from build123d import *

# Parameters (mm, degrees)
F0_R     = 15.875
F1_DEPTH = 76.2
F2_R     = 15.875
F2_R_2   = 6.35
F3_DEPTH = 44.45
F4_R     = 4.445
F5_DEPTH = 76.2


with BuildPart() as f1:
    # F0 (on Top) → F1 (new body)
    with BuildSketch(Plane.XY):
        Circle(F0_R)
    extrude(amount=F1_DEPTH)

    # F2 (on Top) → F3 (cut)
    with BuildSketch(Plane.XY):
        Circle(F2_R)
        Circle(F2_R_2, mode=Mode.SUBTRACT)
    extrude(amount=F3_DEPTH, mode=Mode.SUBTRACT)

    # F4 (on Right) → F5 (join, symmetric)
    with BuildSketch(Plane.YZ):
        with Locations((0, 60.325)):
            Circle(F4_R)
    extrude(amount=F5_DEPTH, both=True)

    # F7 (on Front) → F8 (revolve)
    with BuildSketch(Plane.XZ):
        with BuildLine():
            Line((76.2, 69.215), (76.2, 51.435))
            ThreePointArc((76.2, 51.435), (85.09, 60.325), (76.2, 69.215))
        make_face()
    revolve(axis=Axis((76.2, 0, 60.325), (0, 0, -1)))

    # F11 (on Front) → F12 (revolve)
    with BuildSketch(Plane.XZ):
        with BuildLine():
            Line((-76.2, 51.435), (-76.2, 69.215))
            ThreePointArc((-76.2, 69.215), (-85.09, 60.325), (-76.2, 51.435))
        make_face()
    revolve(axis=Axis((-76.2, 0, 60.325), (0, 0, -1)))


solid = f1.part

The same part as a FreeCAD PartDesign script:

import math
import FreeCAD as App
import Part
import Sketcher
Q = App.Units.Quantity

doc = App.newDocument("Part")
body = doc.addObject("PartDesign::Body", "Body")

# Sketch on XY plane
sketch1 = body.newObject("Sketcher::SketchObject", "Sketch")
sketch1.AttachmentSupport = (doc.getObject("XY_Plane"), [""])
sketch1.MapMode = "FlatFace"
sketch1.addGeometry(Part.Circle(App.Vector(0, 0, 0), App.Vector(0, 0, 1), 16), False)
sketch1.addConstraint(Sketcher.Constraint("Coincident", 0, 3, -1, 1))
sketch1.addConstraint(Sketcher.Constraint("Diameter", 0, Q("1.25 in")))
pad1 = body.newObject("PartDesign::Pad", "Pad")
pad1.Profile = sketch1
pad1.Length = Q("3 in")

# Sketch on XY plane
sketch2 = body.newObject("Sketcher::SketchObject", "Sketch001")
sketch2.AttachmentSupport = (doc.getObject("XY_Plane"), [""])
sketch2.MapMode = "FlatFace"
sketch2.addGeometry(Part.Circle(App.Vector(0, 0, 0), App.Vector(0, 0, 1), 16), False)
sketch2.addGeometry(Part.Circle(App.Vector(0, 0, 0), App.Vector(0, 0, 1), 6), False)
sketch2.addConstraint(Sketcher.Constraint("Coincident", 0, 3, -1, 1))
sketch2.addConstraint(Sketcher.Constraint("Coincident", 1, 3, -1, 1))
sketch2.addConstraint(Sketcher.Constraint("Diameter", 1, Q("0.5 in")))
sketch2.addConstraint(Sketcher.Constraint("Diameter", 0, Q("1.25 in")))
pocket1 = body.newObject("PartDesign::Pocket", "Pocket")
pocket1.Profile = sketch2
pocket1.Length = Q("1.75 in")
pocket1.Reversed = True

# Sketch on YZ plane
sketch3 = body.newObject("Sketcher::SketchObject", "Sketch002")
sketch3.AttachmentSupport = (doc.getObject("YZ_Plane"), [""])
sketch3.MapMode = "FlatFace"
sketch3.addGeometry(Part.Circle(App.Vector(0, 60.3, 0), App.Vector(0, 0, 1), 4.4), False)
sketch3.addConstraint(Sketcher.Constraint("PointOnObject", 0, 3, -2))
sketch3.addConstraint(Sketcher.Constraint("Diameter", 0, Q("0.35 in")))
sketch3.addConstraint(Sketcher.Constraint("DistanceY", -1, 1, 0, 3, Q("2.375 in")))
pad2 = body.newObject("PartDesign::Pad", "Pad001")
pad2.Profile = sketch3
pad2.Length = Q("6 in")
pad2.Midplane = True

# Sketch on XZ plane
sketch4 = body.newObject("Sketcher::SketchObject", "Sketch003")
sketch4.AttachmentSupport = (doc.getObject("XZ_Plane"), [""])
sketch4.MapMode = "FlatFace"
sketch4.addGeometry(Part.LineSegment(App.Vector(76, 69, 0), App.Vector(76, 51, 0)), False)
sketch4.addGeometry(Part.ArcOfCircle(Part.Circle(App.Vector(76, 60, 0), App.Vector(0, 0, 1), 9), math.radians(-90), math.radians(90)), False)
sketch4.addGeometry(Part.LineSegment(App.Vector(76, 69, 0), App.Vector(76, 51, 0)), True)  # axis
sketch4.addConstraint(Sketcher.Constraint("Coincident", 0, 1, 1, 2))
sketch4.addConstraint(Sketcher.Constraint("Coincident", 1, 1, 0, 2))
sketch4.addConstraint(Sketcher.Constraint("Vertical", 0))
sketch4.addConstraint(Sketcher.Constraint("Vertical", 2))
sketch4.addConstraint(Sketcher.Constraint("Coincident", 2, 1, 0, 1))
sketch4.addConstraint(Sketcher.Constraint("Vertical", 1, 3, 0, 1))
sketch4.addConstraint(Sketcher.Constraint("Equal", 0, 2))
sketch4.addConstraint(Sketcher.Constraint("Radius", 1, Q("0.35 in")))
sketch4.addConstraint(Sketcher.Constraint("DistanceX", -1, 1, 1, 3, Q("3 in")))
sketch4.addConstraint(Sketcher.Constraint("DistanceY", -1, 1, 1, 3, Q("2.375 in")))
revolution = body.newObject("PartDesign::Revolution", "Revolution")
revolution.Profile = sketch4
revolution.ReferenceAxis = (sketch4, ["Axis0"])
revolution.Angle = 360

# Sketch on XZ plane
sketch5 = body.newObject("Sketcher::SketchObject", "Sketch004")
sketch5.AttachmentSupport = (doc.getObject("XZ_Plane"), [""])
sketch5.MapMode = "FlatFace"
sketch5.addGeometry(Part.LineSegment(App.Vector(-76, 51, 0), App.Vector(-76, 69, 0)), False)
sketch5.addGeometry(Part.ArcOfCircle(Part.Circle(App.Vector(-76, 60, 0), App.Vector(0, 0, 1), 9), math.radians(90), math.radians(270)), False)
sketch5.addGeometry(Part.LineSegment(App.Vector(-76, 69, 0), App.Vector(-76, 51, 0)), True)  # axis
sketch5.addConstraint(Sketcher.Constraint("Coincident", 0, 1, 1, 2))
sketch5.addConstraint(Sketcher.Constraint("Coincident", 1, 1, 0, 2))
sketch5.addConstraint(Sketcher.Constraint("Vertical", 0))
sketch5.addConstraint(Sketcher.Constraint("Vertical", 2))
sketch5.addConstraint(Sketcher.Constraint("Coincident", 2, 1, 1, 1))
sketch5.addConstraint(Sketcher.Constraint("Vertical", 1, 3, 0, 1))
sketch5.addConstraint(Sketcher.Constraint("Equal", 0, 2))
sketch5.addConstraint(Sketcher.Constraint("Radius", 1, Q("0.35 in")))
sketch5.addConstraint(Sketcher.Constraint("DistanceX", 1, 3, -1, 1, Q("3 in")))
sketch5.addConstraint(Sketcher.Constraint("DistanceY", -1, 1, 1, 3, Q("2.375 in")))
revolution2 = body.newObject("PartDesign::Revolution", "Revolution001")
revolution2.Profile = sketch5
revolution2.ReferenceAxis = (sketch5, ["Axis0"])
revolution2.Angle = 360

doc.recompute()
